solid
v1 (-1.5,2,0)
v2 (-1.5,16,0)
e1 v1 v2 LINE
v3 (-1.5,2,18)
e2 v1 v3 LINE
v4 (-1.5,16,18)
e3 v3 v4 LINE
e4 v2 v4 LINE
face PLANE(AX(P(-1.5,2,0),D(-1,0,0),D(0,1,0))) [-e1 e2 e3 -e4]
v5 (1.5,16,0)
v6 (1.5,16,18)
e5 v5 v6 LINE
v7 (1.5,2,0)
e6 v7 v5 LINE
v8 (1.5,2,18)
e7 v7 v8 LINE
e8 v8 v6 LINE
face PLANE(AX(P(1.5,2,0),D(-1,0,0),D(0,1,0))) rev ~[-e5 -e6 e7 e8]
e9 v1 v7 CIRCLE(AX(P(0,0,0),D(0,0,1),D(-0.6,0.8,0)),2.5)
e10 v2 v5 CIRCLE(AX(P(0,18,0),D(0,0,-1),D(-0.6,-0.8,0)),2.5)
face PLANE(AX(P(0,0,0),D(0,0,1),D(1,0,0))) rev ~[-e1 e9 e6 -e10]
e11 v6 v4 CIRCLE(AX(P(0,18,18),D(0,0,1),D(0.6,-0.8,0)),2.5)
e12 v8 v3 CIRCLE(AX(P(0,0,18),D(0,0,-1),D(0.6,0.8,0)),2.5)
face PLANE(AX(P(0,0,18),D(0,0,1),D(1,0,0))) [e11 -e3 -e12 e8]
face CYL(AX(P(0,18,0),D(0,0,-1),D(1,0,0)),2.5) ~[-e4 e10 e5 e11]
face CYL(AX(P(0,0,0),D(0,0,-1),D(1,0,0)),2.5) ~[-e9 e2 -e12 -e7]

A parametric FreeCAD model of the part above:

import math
import FreeCAD as App
import Part
import Sketcher

V = App.Vector

doc = App.newDocument("Part")
body = doc.addObject("PartDesign::Body", "Body")

sketch1 = doc.addObject("Sketcher::SketchObject", "Sketch")
body.addObject(sketch1)
sketch1.AttachmentSupport = (doc.XY_Plane, [""])
sketch1.MapMode = "FlatFace"
sketch1.addGeometry([
    Part.ArcOfCircle(Part.Circle(V(0, 0, 0), V(0, 0, 1), 2.5), math.radians(127), math.radians(413)),
    Part.LineSegment(V(1.5, 2, 0), V(1.5, 16, 0)),
    Part.ArcOfCircle(Part.Circle(V(0, 18, 0), V(0, 0, 1), 2.5), math.radians(-53), math.radians(233)),
    Part.LineSegment(V(-1.5, 16, 0), V(-1.5, 2, 0)),
], False)
sketch1.addConstraint([
    Sketcher.Constraint("Coincident", 0, 2, 1, 1),
    Sketcher.Constraint("Coincident", 1, 2, 2, 1),
    Sketcher.Constraint("Coincident", 2, 2, 3, 1),
    Sketcher.Constraint("Coincident", 3, 2, 0, 1),
    Sketcher.Constraint("Vertical", 1),
    Sketcher.Constraint("Vertical", 3),
    Sketcher.Constraint("Coincident", 0, 3, -1, 1),
    Sketcher.Constraint("Equal", 0, 2),
    Sketcher.Constraint("Symmetric", 1, 2, 2, 2, -2),
    Sketcher.Constraint("Radius", 0, 2.5),
    Sketcher.Constraint("DistanceY", -1, 1, 2, 3, 18.0),
    Sketcher.Constraint("DistanceX", -1, 1, 0, 2, 1.5),
])
pad1 = doc.addObject("PartDesign::Pad", "Pad")
body.addObject(pad1)
pad1.Profile = sketch1
pad1.Length = 18

doc.recompute()
